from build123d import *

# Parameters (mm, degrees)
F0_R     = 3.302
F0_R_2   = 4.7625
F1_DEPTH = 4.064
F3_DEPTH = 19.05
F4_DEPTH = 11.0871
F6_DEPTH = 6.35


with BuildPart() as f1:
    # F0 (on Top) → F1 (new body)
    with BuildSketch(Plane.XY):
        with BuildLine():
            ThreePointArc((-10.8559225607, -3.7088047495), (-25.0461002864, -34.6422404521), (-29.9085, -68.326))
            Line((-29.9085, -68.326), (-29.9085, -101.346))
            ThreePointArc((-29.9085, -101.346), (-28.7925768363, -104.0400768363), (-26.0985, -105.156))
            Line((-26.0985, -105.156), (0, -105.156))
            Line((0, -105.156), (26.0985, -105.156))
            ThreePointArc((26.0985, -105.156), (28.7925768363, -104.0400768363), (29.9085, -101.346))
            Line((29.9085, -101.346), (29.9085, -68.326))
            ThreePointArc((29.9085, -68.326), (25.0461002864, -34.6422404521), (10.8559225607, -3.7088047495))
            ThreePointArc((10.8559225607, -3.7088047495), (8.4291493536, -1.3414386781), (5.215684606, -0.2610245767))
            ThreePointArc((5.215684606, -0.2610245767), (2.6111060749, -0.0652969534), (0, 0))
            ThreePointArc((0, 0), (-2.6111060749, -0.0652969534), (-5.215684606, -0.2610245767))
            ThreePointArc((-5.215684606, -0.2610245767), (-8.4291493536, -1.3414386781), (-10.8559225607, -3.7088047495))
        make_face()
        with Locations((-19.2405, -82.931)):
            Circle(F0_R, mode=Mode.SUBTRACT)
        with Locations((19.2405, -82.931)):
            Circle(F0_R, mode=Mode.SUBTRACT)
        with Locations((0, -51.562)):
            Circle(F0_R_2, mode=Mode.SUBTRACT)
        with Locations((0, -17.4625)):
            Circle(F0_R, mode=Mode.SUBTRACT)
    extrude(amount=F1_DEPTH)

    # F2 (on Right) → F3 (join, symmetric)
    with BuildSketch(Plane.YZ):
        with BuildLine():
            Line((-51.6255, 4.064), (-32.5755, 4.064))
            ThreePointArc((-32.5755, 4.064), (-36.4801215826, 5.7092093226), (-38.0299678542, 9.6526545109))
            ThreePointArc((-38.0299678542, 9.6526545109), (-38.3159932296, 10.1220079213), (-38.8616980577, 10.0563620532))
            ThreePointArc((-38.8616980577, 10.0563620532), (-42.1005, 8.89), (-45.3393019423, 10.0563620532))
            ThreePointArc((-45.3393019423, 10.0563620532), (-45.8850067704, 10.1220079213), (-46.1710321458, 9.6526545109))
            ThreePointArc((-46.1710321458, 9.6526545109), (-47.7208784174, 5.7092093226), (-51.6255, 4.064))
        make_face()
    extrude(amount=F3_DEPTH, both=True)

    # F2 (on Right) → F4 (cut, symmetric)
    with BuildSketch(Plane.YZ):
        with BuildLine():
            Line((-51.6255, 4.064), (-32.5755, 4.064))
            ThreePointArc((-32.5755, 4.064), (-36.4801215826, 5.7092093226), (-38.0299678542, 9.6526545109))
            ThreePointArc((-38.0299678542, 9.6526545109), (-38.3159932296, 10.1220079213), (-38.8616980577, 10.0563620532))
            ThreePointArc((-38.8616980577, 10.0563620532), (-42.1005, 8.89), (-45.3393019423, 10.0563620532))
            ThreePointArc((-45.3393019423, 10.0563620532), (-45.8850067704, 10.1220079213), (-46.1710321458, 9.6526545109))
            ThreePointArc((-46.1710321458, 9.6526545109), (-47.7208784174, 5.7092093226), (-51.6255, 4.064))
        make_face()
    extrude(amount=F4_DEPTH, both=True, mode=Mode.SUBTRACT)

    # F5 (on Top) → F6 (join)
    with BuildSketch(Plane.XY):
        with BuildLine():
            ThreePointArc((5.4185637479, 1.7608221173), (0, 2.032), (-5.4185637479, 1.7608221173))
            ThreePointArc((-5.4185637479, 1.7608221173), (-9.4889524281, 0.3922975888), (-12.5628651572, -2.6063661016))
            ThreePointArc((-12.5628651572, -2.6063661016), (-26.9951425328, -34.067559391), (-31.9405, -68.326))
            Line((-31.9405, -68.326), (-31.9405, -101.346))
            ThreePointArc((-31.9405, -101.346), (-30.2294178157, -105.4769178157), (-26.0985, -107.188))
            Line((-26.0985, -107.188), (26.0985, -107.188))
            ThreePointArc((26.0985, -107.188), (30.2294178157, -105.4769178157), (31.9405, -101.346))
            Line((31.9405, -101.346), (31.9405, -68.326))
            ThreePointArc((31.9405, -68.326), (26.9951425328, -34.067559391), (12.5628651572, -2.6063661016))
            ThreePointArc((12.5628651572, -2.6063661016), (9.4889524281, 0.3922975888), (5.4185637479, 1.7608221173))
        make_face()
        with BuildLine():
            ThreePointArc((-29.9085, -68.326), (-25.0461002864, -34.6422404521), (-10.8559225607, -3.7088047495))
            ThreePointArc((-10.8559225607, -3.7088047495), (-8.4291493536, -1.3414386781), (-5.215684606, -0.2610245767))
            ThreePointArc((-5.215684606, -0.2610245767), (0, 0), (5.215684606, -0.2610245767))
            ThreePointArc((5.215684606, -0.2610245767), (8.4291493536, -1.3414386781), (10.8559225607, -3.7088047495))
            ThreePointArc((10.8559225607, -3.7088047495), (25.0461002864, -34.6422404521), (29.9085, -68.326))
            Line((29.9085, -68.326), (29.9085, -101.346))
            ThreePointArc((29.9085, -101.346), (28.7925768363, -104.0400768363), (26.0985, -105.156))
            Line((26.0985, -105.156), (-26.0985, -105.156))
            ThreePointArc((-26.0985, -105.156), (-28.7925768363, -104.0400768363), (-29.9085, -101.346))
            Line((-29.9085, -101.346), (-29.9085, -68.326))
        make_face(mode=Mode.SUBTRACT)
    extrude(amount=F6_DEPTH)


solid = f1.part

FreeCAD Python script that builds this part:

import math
import FreeCAD as App
import Part
import Sketcher

V = App.Vector
Q = App.Units.Quantity

doc = App.newDocument("Part")
body = doc.addObject("PartDesign::Body", "Body")

# Sketch on XY plane
sketch1 = body.newObject("Sketcher::SketchObject", "Sketch")
sketch1.AttachmentSupport = (doc.getObject("XY_Plane"), [""])
sketch1.MapMode = "FlatFace"
sketch1.addGeometry([
    Part.ArcOfCircle(Part.Circle(V(89.19304, -68.326, 0), V(0, 0, 1), 119.10154), math.radians(147.143373), math.radians(180)),  # 0
    Part.LineSegment(V(-29.9085, -68.326, 0), V(-29.9085, -101.346, 0)),  # 1
    Part.ArcOfCircle(Part.Circle(V(-26.0985, -101.346, 0), V(0, 0, 1), 3.81), math.radians(180), math.radians(270)),  # 2
    Part.LineSegment(V(-26.0985, -105.156, 0), V(26.0985, -105.156, 0)),  # 3
    Part.ArcOfCircle(Part.Circle(V(26.0985, -101.346, 0), V(0, 0, 1), 3.81), math.radians(-90), math.radians(0)),  # 4
    Part.LineSegment(V(29.9085, -101.346, 0), V(29.9085, -68.326, 0)),  # 5
    Part.ArcOfCircle(Part.Circle(V(-89.19304, -68.326, 0), V(0, 0, 1), 119.10154), math.radians(0), math.radians(32.856627)),  # 6
    Part.ArcOfCircle(Part.Circle(V(4.454888, -7.84295, 0), V(0, 0, 1), 7.62), math.radians(32.856627), math.radians(84.269922)),  # 7
    Part.ArcOfCircle(Part.Circle(V(0, -52.239333, 0), V(0, 0, 1), 52.239333), math.radians(84.269922), math.radians(90)),  # 8
    Part.ArcOfCircle(Part.Circle(V(0, -52.239333, 0), V(0, 0, 1), 52.239333), math.radians(90), math.radians(95.730078)),  # 9
    Part.ArcOfCircle(Part.Circle(V(-4.454888, -7.84295, 0), V(0, 0, 1), 7.62), math.radians(95.730078), math.radians(147.143373)),  # 10
    Part.Circle(V(-19.2405, -82.931, 0), V(0, 0, 1), 3.302),  # 11
    Part.Circle(V(19.2405, -82.931, 0), V(0, 0, 1), 3.302),  # 12
    Part.Circle(V(0, -51.562, 0), V(0, 0, 1), 4.7625),  # 13
    Part.Circle(V(0, -17.4625, 0), V(0, 0, 1), 3.302),  # 14
], False)
sketch1.addConstraint([
    Sketcher.Constraint("Tangent", 0, 2, 1, 1),
    Sketcher.Constraint("Tangent", 1, 2, 2, 1),
    Sketcher.Constraint("Tangent", 2, 2, 3, 1),
    Sketcher.Constraint("Tangent", 3, 2, 4, 1),
    Sketcher.Constraint("Tangent", 4, 2, 5, 1),
    Sketcher.Constraint("Tangent", 5, 2, 6, 1),
    Sketcher.Constraint("Tangent", 6, 2, 7, 1),
    Sketcher.Constraint("Tangent", 7, 2, 8, 1),
    Sketcher.Constraint("Tangent", 8, 2, 9, 1),
    Sketcher.Constraint("Tangent", 9, 2, 10, 1),
    Sketcher.Constraint("Tangent", 10, 2, 0, 1),
    Sketcher.Constraint("Vertical", 1),
    Sketcher.Constraint("Horizontal", 3),
    Sketcher.Constraint("Vertical", 5),
    Sketcher.Constraint("Coincident", 8, 2, -1, 1),
    Sketcher.Constraint("Equal", 2, 4),
    Sketcher.Constraint("Equal", 0, 6),
    Sketcher.Constraint("Equal", 8, 9),
    Sketcher.Constraint("Equal", 7, 10),
    Sketcher.Constraint("Equal", 11, 12),
    Sketcher.Constraint("Equal", 12, 14),
    Sketcher.Constraint("Symmetric", 0, 3, 6, 3, -2),
    Sketcher.Constraint("Symmetric", 11, 3, 12, 3, -2),
    Sketcher.Constraint("PointOnObject", 8, 3, -2),
    Sketcher.Constraint("PointOnObject", 13, 3, -2),
    Sketcher.Constraint("PointOnObject", 14, 3, -2),
    Sketcher.Constraint("Radius", 7, Q("0.3 in")),
    Sketcher.Constraint("Diameter", 11, Q("0.26 in")),
    Sketcher.Constraint("Radius", 2, Q("0.15 in")),
    Sketcher.Constraint("Diameter", 13, Q("0.375 in")),
    Sketcher.Constraint("DistanceY", 1, 2, 1, 1, Q("1.3 in")),
    Sketcher.Constraint("DistanceX", 3, 1, 3, 2, Q("2.055 in")),
    Sketcher.Constraint("DistanceY", 0, 3, -1, 1, Q("2.69 in")),
    Sketcher.Constraint("DistanceY", 13, 3, -1, 1, Q("2.03 in")),
    Sketcher.Constraint("DistanceX", 2, 3, 11, 3, Q("0.27 in")),
    Sketcher.Constraint("DistanceY", 11, 3, -1, 1, Q("3.265 in")),
    Sketcher.Constraint("DistanceY", 14, 3, -1, 1, Q("0.6875 in")),
    Sketcher.Constraint("Radius", 0, Q("119.10154 mm")),
    Sketcher.Constraint("Radius", 8, Q("52.239333 mm")),
])
pad1 = body.newObject("PartDesign::Pad", "Pad")
pad1.Profile = sketch1
pad1.Length = Q("0.16 in")

# Sketch on YZ plane
sketch2 = body.newObject("Sketcher::SketchObject", "Sketch001")
sketch2.AttachmentSupport = (doc.getObject("YZ_Plane"), [""])
sketch2.MapMode = "FlatFace"
sketch2.addGeometry([
    Part.LineSegment(V(-51.6255, 4.064, 0), V(-32.5755, 4.064, 0)),  # 0
    Part.ArcOfCircle(Part.Circle(V(-32.5755, 9.520079, 0), V(0, 0, 1), 5.456079), math.radians(178.607649), math.radians(270)),  # 1
    Part.ArcOfCircle(Part.Circle(V(-38.537818, 9.664998, 0), V(0, 0, 1), 0.508), math.radians(-1.392351), math.radians(129.610073)),  # 2
    Part.ArcOfCircle(Part.Circle(V(-42.1005, 13.97, 0), V(0, 0, 1), 5.08), math.radians(-129.610073), math.radians(-50.389927)),  # 3
    Part.ArcOfCircle(Part.Circle(V(-45.663182, 9.664998, 0), V(0, 0, 1), 0.508), math.radians(50.389927), math.radians(181.392351)),  # 4
    Part.ArcOfCircle(Part.Circle(V(-51.6255, 9.520079, 0), V(0, 0, 1), 5.456079), math.radians(-90), math.radians(1.392351)),  # 5
], False)
sketch2.addConstraint([
    Sketcher.Constraint("Tangent", 0, 2, 1, 2),
    Sketcher.Constraint("Tangent", 1, 1, 2, 1),
    Sketcher.Constraint("Tangent", 2, 2, 3, 2),
    Sketcher.Constraint("Tangent", 3, 1, 4, 1),
    Sketcher.Constraint("Tangent", 4, 2, 5, 2),
    Sketcher.Constraint("Tangent", 5, 1, 0, 1),
    Sketcher.Constraint("Horizontal", 0),
    Sketcher.Constraint("Equal", 2, 4),
    Sketcher.Constraint("Equal", 1, 5),
    Sketcher.Constraint("Horizontal", 2, 3, 4, 3),
    Sketcher.Constraint("Radius", 3, Q("0.2 in")),
    Sketcher.Constraint("Radius", 2, Q("0.02 in")),
    Sketcher.Constraint("DistanceX", 0, 1, 0, 2, Q("0.75 in")),
    Sketcher.Constraint("DistanceY", -1, 1, 3, 3, Q("0.55 in")),
    Sketcher.Constraint("DistanceY", -1, 1, 0, 2, Q("0.16 in")),
    Sketcher.Constraint("Radius", 1, Q("5.456079 mm")),
    Sketcher.Constraint("DistanceX", 1, 3, -1, 1, Q("1.2825 in")),
])
pad2 = body.newObject("PartDesign::Pad", "Pad001")
pad2.Profile = sketch2
pad2.Length = Q("1.5 in")
pad2.Midplane = True

# Sketch on YZ plane
sketch3 = body.newObject("Sketcher::SketchObject", "Sketch002")
sketch3.AttachmentSupport = (doc.getObject("YZ_Plane"), [""])
sketch3.MapMode = "FlatFace"
sketch3.addGeometry([
    Part.LineSegment(V(-51.6255, 4.064, 0), V(-32.5755, 4.064, 0)),  # 0
    Part.ArcOfCircle(Part.Circle(V(-32.5755, 9.520079, 0), V(0, 0, 1), 5.456079), math.radians(178.607649), math.radians(270)),  # 1
    Part.ArcOfCircle(Part.Circle(V(-38.537818, 9.664998, 0), V(0, 0, 1), 0.508), math.radians(-1.392351), math.radians(129.610073)),  # 2
    Part.ArcOfCircle(Part.Circle(V(-42.1005, 13.97, 0), V(0, 0, 1), 5.08), math.radians(-129.610073), math.radians(-50.389927)),  # 3
    Part.ArcOfCircle(Part.Circle(V(-45.663182, 9.664998, 0), V(0, 0, 1), 0.508), math.radians(50.389927), math.radians(181.392351)),  # 4
    Part.ArcOfCircle(Part.Circle(V(-51.6255, 9.520079, 0), V(0, 0, 1), 5.456079), math.radians(-90), math.radians(1.392351)),  # 5
], False)
sketch3.addConstraint([
    Sketcher.Constraint("Tangent", 0, 2, 1, 2),
    Sketcher.Constraint("Tangent", 1, 1, 2, 1),
    Sketcher.Constraint("Tangent", 2, 2, 3, 2),
    Sketcher.Constraint("Tangent", 3, 1, 4, 1),
    Sketcher.Constraint("Tangent", 4, 2, 5, 2),
    Sketcher.Constraint("Tangent", 5, 1, 0, 1),
    Sketcher.Constraint("Horizontal", 0),
    Sketcher.Constraint("Equal", 2, 4),
    Sketcher.Constraint("Equal", 1, 5),
    Sketcher.Constraint("Horizontal", 2, 3, 4, 3),
    Sketcher.Constraint("Radius", 3, Q("0.2 in")),
    Sketcher.Constraint("Radius", 2, Q("0.02 in")),
    Sketcher.Constraint("DistanceX", 0, 1, 0, 2, Q("0.75 in")),
    Sketcher.Constraint("DistanceY", -1, 1, 3, 3, Q("0.55 in")),
    Sketcher.Constraint("DistanceY", -1, 1, 0, 2, Q("0.16 in")),
    Sketcher.Constraint("Radius", 1, Q("5.456079 mm")),
    Sketcher.Constraint("DistanceX", 1, 3, -1, 1, Q("1.2825 in")),
])
pocket1 = body.newObject("PartDesign::Pocket", "Pocket")
pocket1.Profile = sketch3
pocket1.Length = Q("0.873 in")
pocket1.Midplane = True

# Sketch on XY plane
sketch4 = body.newObject("Sketcher::SketchObject", "Sketch003")
sketch4.AttachmentSupport = (doc.getObject("XY_Plane"), [""])
sketch4.MapMode = "FlatFace"
sketch4.addGeometry([
    Part.ArcOfCircle(Part.Circle(V(0, -52.239333, 0), V(0, 0, 1), 54.271333), math.radians(84.269922), math.radians(95.730078)),  # 0
    Part.ArcOfCircle(Part.Circle(V(-4.454888, -7.84295, 0), V(0, 0, 1), 9.652), math.radians(95.730078), math.radians(147.143373)),  # 1
    Part.ArcOfCircle(Part.Circle(V(89.19304, -68.326, 0), V(0, 0, 1), 121.13354), math.radians(147.143373), math.radians(180)),  # 2
    Part.LineSegment(V(-31.9405, -68.326, 0), V(-31.9405, -101.346, 0)),  # 3
    Part.ArcOfCircle(Part.Circle(V(-26.0985, -101.346, 0), V(0, 0, 1), 5.842), math.radians(180), math.radians(270)),  # 4
    Part.LineSegment(V(-26.0985, -107.188, 0), V(26.0985, -107.188, 0)),  # 5
    Part.ArcOfCircle(Part.Circle(V(26.0985, -101.346, 0), V(0, 0, 1), 5.842), math.radians(-90), math.radians(0)),  # 6
    Part.LineSegment(V(31.9405, -101.346, 0), V(31.9405, -68.326, 0)),  # 7
    Part.ArcOfCircle(Part.Circle(V(-89.19304, -68.326, 0), V(0, 0, 1), 121.13354), math.radians(0), math.radians(32.856627)),  # 8
    Part.ArcOfCircle(Part.Circle(V(4.454888, -7.84295, 0), V(0, 0, 1), 9.652), math.radians(32.856627), math.radians(84.269922)),  # 9
    Part.LineSegment(V(-29.9085, -101.346, 0), V(-29.9085, -68.326, 0)),  # 10
    Part.ArcOfCircle(Part.Circle(V(89.19304, -68.326, 0), V(0, 0, 1), 119.10154), math.radians(147.143373), math.radians(180)),  # 11
    Part.ArcOfCircle(Part.Circle(V(-4.454888, -7.84295, 0), V(0, 0, 1), 7.62), math.radians(95.730078), math.radians(147.143373)),  # 12
    Part.ArcOfCircle(Part.Circle(V(0, -52.239333, 0), V(0, 0, 1), 52.239333), math.radians(84.269922), math.radians(95.730078)),  # 13
    Part.ArcOfCircle(Part.Circle(V(4.454888, -7.84295, 0), V(0, 0, 1), 7.62), math.radians(32.856627), math.radians(84.269922)),  # 14
    Part.ArcOfCircle(Part.Circle(V(-89.19304, -68.326, 0), V(0, 0, 1), 119.10154), math.radians(0), math.radians(32.856627)),  # 15
    Part.LineSegment(V(29.9085, -68.326, 0), V(29.9085, -101.346, 0)),  # 16
    Part.ArcOfCircle(Part.Circle(V(26.0985, -101.346, 0), V(0, 0, 1), 3.81), math.radians(-90), math.radians(0)),  # 17
    Part.LineSegment(V(26.0985, -105.156, 0), V(-26.0985, -105.156, 0)),  # 18
    Part.ArcOfCircle(Part.Circle(V(-26.0985, -101.346, 0), V(0, 0, 1), 3.81), math.radians(180), math.radians(270)),  # 19
], False)
sketch4.addConstraint([
    Sketcher.Constraint("Tangent", 0, 2, 1, 1),
    Sketcher.Constraint("Tangent", 1, 2, 2, 1),
    Sketcher.Constraint("Tangent", 2, 2, 3, 1),
    Sketcher.Constraint("Tangent", 3, 2, 4, 1),
    Sketcher.Constraint("Tangent", 4, 2, 5, 1),
    Sketcher.Constraint("Tangent", 5, 2, 6, 1),
    Sketcher.Constraint("Tangent", 6, 2, 7, 1),
    Sketcher.Constraint("Tangent", 7, 2, 8, 1),
    Sketcher.Constraint("Tangent", 8, 2, 9, 1),
    Sketcher.Constraint("Tangent", 9, 2, 0, 1),
    Sketcher.Constraint("Tangent", 10, 2, 11, 2),
    Sketcher.Constraint("Tangent", 11, 1, 12, 2),
    Sketcher.Constraint("Tangent", 12, 1, 13, 2),
    Sketcher.Constraint("Tangent", 13, 1, 14, 2),
    Sketcher.Constraint("Tangent", 14, 1, 15, 2),
    Sketcher.Constraint("Tangent", 15, 1, 16, 1),
    Sketcher.Constraint("Tangent", 16, 2, 17, 2),
    Sketcher.Constraint("Tangent", 17, 1, 18, 1),
    Sketcher.Constraint("Tangent", 18, 2, 19, 2),
    Sketcher.Constraint("Tangent", 19, 1, 10, 1),
    Sketcher.Constraint("Vertical", 3),
    Sketcher.Constraint("Horizontal", 5),
    Sketcher.Constraint("Vertical", 7),
    Sketcher.Constraint("Vertical", 10),
    Sketcher.Constraint("Vertical", 16),
    Sketcher.Constraint("Horizontal", 18),
    Sketcher.Constraint("Coincident", 11, 3, 2, 3),
    Sketcher.Constraint("Coincident", 12, 3, 1, 3),
    Sketcher.Constraint("Coincident", 13, 3, 0, 3),
    Sketcher.Constraint("Coincident", 14, 3, 9, 3),
    Sketcher.Constraint("Coincident", 15, 3, 8, 3),
    Sketcher.Constraint("Coincident", 17, 3, 6, 3),
    Sketcher.Constraint("Equal", 4, 6),
    Sketcher.Constraint("Equal", 2, 8),
    Sketcher.Constraint("Equal", 1, 9),
    Sketcher.Constraint("Equal", 17, 19),
    Sketcher.Constraint("Symmetric", 2, 3, 8, 3, -2),
    Sketcher.Constraint("PointOnObject", 0, 3, -2),
    Sketcher.Constraint("Radius", 12, Q("0.3 in")),
    Sketcher.Constraint("Radius", 1, Q("0.38 in")),
    Sketcher.Constraint("Radius", 4, Q("0.23 in")),
    Sketcher.Constraint("DistanceY", 3, 2, 3, 1, Q("1.3 in")),
    Sketcher.Constraint("DistanceX", 5, 1, 5, 2, Q("2.055 in")),
    Sketcher.Constraint("DistanceY", 2, 3, -1, 1, Q("2.69 in")),
    Sketcher.Constraint("Radius", 2, Q("121.13354 mm")),
    Sketcher.Constraint("Radius", 0, Q("54.271333 mm")),
    Sketcher.Constraint("DistanceY", 1, 3, -1, 1, Q("7.84295 mm")),
])
pad3 = body.newObject("PartDesign::Pad", "Pad002")
pad3.Profile = sketch4
pad3.Length = Q("0.25 in")

doc.recompute()
